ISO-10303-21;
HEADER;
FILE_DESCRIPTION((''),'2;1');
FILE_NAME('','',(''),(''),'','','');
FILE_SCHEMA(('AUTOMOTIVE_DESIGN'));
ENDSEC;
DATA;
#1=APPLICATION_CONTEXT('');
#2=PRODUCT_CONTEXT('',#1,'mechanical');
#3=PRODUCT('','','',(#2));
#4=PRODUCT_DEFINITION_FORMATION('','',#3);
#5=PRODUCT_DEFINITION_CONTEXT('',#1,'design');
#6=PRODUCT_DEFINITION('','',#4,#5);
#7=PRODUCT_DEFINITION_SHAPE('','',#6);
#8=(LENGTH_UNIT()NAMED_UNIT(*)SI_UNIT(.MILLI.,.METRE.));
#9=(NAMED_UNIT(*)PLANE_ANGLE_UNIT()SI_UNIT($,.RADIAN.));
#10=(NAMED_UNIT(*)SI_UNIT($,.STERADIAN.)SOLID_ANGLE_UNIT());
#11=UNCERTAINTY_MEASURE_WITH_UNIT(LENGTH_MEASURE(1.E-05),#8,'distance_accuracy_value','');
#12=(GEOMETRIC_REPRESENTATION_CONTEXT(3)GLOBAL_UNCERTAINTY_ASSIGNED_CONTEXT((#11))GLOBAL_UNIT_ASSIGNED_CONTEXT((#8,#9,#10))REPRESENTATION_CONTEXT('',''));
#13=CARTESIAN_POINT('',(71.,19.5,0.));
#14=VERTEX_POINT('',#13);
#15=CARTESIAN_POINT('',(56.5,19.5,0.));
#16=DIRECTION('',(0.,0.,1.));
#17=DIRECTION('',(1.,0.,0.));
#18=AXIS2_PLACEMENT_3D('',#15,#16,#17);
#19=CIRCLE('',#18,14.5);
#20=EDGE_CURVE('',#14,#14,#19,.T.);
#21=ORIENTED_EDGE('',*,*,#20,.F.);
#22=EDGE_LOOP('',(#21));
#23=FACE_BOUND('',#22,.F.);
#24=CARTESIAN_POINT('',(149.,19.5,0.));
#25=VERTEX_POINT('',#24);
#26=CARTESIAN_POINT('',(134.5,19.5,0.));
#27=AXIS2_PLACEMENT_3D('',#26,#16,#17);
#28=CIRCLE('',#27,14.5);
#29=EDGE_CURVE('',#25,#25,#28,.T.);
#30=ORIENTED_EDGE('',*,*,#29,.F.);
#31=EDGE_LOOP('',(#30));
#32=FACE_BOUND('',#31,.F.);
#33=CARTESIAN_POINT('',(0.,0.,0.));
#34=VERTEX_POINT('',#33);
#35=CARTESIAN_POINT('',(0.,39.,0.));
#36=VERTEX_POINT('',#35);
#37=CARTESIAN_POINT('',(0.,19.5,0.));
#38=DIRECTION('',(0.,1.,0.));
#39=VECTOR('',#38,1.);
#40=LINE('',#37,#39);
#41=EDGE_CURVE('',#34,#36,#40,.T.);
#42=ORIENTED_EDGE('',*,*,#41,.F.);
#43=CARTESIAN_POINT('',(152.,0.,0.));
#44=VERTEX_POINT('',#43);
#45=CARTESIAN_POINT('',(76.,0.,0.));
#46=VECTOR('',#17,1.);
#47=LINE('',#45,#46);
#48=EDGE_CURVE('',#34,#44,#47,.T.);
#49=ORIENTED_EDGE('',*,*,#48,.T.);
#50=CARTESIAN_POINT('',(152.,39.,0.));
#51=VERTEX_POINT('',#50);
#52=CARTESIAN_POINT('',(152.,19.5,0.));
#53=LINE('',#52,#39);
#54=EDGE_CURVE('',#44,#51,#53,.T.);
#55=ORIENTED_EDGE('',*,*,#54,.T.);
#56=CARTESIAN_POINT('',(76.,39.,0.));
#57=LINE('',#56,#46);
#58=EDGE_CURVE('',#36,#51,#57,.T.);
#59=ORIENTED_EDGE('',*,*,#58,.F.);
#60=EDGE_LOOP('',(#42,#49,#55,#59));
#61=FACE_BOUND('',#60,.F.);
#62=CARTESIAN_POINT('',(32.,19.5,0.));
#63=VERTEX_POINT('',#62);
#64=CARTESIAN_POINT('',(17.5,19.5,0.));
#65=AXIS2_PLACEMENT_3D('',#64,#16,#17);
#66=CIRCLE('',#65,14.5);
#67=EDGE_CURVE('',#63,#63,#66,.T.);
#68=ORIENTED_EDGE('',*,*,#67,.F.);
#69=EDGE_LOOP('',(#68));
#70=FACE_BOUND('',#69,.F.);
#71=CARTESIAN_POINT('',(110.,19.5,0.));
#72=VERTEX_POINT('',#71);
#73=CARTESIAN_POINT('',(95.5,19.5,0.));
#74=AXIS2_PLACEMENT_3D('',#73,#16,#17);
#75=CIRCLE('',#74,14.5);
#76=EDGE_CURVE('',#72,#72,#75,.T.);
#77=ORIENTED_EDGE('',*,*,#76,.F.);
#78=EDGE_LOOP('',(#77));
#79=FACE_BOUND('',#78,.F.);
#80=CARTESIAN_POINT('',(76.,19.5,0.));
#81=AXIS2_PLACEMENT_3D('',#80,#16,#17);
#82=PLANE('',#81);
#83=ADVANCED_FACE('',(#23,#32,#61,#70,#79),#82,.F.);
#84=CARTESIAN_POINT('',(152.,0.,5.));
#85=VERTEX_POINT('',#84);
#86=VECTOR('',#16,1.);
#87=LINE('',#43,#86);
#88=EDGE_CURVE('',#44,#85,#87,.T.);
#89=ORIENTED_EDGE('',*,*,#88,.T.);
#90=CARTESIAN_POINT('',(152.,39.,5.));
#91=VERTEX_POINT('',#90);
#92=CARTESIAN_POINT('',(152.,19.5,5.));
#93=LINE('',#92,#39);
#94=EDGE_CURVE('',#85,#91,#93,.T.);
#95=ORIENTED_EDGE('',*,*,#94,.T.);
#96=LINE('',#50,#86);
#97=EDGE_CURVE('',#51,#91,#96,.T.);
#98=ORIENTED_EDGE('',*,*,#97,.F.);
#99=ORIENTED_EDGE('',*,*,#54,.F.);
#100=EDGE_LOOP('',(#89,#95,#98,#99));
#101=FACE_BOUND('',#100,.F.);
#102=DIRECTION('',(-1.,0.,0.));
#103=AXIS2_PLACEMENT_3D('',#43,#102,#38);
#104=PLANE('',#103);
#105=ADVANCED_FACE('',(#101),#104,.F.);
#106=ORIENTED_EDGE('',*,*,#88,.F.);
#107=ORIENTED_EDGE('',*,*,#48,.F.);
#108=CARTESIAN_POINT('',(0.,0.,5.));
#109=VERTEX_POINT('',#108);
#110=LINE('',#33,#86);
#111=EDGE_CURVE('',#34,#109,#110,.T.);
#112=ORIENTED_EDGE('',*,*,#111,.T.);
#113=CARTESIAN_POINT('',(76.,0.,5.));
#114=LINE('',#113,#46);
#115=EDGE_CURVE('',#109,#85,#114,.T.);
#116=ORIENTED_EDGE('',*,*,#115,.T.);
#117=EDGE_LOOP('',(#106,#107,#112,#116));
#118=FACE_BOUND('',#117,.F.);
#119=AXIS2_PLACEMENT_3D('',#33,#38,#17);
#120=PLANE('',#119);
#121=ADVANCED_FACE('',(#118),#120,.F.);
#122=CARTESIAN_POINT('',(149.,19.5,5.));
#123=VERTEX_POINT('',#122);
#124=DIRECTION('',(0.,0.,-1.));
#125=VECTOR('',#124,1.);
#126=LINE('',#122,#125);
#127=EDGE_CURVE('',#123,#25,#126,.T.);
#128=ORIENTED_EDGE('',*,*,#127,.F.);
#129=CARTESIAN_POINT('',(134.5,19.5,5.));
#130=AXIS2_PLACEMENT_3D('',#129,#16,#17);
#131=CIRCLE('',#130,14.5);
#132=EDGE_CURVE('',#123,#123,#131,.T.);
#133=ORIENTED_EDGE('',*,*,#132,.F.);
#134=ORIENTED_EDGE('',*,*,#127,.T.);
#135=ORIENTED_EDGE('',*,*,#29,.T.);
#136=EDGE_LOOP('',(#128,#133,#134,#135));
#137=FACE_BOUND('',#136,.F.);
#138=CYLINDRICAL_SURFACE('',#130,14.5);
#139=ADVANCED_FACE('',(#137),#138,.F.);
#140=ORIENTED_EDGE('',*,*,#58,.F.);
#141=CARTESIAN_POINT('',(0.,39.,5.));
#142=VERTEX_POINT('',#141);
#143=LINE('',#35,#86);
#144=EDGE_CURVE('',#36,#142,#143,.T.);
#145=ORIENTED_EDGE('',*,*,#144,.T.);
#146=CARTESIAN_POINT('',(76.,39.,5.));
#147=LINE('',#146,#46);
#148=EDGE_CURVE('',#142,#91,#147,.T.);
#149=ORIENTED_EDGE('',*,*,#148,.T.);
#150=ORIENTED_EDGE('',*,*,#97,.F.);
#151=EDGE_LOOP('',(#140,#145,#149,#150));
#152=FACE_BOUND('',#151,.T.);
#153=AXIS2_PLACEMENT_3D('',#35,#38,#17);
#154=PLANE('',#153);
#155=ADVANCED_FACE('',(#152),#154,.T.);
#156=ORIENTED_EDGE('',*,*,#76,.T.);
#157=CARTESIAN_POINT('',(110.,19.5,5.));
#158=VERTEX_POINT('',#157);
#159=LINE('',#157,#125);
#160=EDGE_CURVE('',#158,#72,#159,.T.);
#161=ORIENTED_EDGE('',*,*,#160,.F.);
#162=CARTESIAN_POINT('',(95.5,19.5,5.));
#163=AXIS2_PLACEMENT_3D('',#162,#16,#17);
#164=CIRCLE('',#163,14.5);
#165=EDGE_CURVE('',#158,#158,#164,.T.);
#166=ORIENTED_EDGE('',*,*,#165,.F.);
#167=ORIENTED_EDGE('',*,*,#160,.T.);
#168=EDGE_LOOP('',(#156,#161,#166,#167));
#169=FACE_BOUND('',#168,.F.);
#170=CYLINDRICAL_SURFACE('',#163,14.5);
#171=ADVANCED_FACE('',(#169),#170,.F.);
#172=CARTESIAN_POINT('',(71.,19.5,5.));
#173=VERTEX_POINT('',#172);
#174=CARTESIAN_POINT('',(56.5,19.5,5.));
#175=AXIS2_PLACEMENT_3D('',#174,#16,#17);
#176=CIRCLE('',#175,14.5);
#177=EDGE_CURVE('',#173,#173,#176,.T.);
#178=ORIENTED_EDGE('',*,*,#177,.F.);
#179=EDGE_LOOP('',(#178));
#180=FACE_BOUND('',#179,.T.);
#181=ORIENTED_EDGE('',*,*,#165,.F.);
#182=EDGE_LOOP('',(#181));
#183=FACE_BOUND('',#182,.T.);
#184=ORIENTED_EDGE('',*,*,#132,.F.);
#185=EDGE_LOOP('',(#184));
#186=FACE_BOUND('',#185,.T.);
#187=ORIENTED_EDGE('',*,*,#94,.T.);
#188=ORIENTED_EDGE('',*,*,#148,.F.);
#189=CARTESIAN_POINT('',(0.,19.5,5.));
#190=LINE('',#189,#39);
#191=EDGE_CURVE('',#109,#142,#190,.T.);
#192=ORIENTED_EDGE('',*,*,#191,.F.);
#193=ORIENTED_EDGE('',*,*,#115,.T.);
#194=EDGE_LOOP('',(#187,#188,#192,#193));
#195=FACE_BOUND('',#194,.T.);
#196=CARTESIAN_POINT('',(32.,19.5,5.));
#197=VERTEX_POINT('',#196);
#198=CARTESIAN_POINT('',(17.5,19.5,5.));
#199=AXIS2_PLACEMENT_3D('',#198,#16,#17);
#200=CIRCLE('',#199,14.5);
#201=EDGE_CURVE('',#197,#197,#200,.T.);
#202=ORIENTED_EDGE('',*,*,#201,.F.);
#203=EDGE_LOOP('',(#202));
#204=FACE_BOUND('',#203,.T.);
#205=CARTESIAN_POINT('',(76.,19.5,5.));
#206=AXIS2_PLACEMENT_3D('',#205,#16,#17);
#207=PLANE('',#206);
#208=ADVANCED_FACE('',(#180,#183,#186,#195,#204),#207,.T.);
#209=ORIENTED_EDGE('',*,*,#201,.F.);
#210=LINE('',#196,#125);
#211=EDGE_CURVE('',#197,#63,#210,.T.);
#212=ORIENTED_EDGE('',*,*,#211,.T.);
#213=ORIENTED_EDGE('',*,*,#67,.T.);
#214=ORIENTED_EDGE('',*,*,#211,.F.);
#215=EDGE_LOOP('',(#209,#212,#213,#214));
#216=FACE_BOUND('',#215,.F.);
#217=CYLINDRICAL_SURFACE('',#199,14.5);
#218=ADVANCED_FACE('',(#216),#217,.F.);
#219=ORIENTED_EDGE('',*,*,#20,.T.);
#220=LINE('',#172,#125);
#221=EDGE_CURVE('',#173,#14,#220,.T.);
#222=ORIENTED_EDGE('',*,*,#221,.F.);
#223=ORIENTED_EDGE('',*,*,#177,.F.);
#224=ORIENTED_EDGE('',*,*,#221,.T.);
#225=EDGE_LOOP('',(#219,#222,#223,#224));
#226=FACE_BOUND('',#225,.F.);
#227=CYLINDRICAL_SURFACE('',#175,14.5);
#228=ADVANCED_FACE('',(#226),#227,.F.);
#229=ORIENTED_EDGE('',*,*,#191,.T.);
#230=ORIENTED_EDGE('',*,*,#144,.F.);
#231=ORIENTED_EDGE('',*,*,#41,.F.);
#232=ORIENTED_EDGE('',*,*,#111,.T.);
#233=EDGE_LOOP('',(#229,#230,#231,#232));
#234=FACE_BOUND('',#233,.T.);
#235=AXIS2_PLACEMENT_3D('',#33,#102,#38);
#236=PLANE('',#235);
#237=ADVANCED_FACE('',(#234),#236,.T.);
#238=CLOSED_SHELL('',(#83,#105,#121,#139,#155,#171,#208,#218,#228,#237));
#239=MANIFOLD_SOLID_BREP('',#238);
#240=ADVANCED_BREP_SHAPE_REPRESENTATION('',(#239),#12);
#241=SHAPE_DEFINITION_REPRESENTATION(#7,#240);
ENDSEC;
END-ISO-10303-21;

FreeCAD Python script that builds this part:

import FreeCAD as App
import Part
import Sketcher


def add_polygon(sketch, points):
    """Adds a closed chain of lines whose ends are joined by coincident constraints."""
    first, n = sketch.GeometryCount, len(points)
    for a, b in zip(points, points[1:] + points[:1]):
        sketch.addGeometry(Part.LineSegment(App.Vector(*a, 0), App.Vector(*b, 0)), False)
    for i in range(n):
        sketch.addConstraint(Sketcher.Constraint("Coincident", first + i, 2, first + (i + 1) % n, 1))

doc = App.newDocument("Part")
body = doc.addObject("PartDesign::Body", "Body")

sketch1 = body.newObject("Sketcher::SketchObject", "Sketch")
sketch1.AttachmentSupport = (doc.getObject("XY_Plane"), [""])
sketch1.MapMode = "FlatFace"
add_polygon(sketch1, [(0, 39), (0, 0), (152, 0), (152, 39)])
sketch1.addConstraint(Sketcher.Constraint("Vertical", 0))
sketch1.addConstraint(Sketcher.Constraint("Horizontal", 1))
sketch1.addConstraint(Sketcher.Constraint("Vertical", 2))
sketch1.addConstraint(Sketcher.Constraint("Horizontal", 3))
sketch1.addConstraint(Sketcher.Constraint("Coincident", 0, 2, -1, 1))
sketch1.addConstraint(Sketcher.Constraint("DistanceX", 1, 1, 1, 2, 152.0))
sketch1.addConstraint(Sketcher.Constraint("DistanceY", 0, 2, 0, 1, 39.0))
pad1 = body.newObject("PartDesign::Pad", "Pad")
pad1.Profile = sketch1
pad1.Length = 5

sketch2 = body.newObject("Sketcher::SketchObject", "Sketch001")
sketch2.AttachmentSupport = (doc.getObject("XY_Plane"), [""])
sketch2.MapMode = "FlatFace"
sketch2.AttachmentOffset = App.Placement(App.Vector(0, 0, 5), App.Rotation())
sketch2.addGeometry(Part.Circle(App.Vector(18, 20, 0), App.Vector(0, 0, 1), 14), False)
sketch2.addConstraint(Sketcher.Constraint("Diameter", 0, 29.0))
sketch2.addConstraint(Sketcher.Constraint("DistanceX", -1, 1, 0, 3, 17.5))
sketch2.addConstraint(Sketcher.Constraint("DistanceY", -1, 1, 0, 3, 19.5))
pocket1 = body.newObject("PartDesign::Pocket", "Pocket")
pocket1.Profile = sketch2
pocket1.Length = 5
doc.recompute()

linearpattern = body.newObject("PartDesign::LinearPattern", "LinearPattern")
linearpattern.Originals = [pocket1]
linearpattern.Direction = (doc.getObject("X_Axis"), [""])
linearpattern.Mode = "offset"
linearpattern.Offset = 39
linearpattern.Occurrences = 4
body.Tip = linearpattern

doc.recompute()
